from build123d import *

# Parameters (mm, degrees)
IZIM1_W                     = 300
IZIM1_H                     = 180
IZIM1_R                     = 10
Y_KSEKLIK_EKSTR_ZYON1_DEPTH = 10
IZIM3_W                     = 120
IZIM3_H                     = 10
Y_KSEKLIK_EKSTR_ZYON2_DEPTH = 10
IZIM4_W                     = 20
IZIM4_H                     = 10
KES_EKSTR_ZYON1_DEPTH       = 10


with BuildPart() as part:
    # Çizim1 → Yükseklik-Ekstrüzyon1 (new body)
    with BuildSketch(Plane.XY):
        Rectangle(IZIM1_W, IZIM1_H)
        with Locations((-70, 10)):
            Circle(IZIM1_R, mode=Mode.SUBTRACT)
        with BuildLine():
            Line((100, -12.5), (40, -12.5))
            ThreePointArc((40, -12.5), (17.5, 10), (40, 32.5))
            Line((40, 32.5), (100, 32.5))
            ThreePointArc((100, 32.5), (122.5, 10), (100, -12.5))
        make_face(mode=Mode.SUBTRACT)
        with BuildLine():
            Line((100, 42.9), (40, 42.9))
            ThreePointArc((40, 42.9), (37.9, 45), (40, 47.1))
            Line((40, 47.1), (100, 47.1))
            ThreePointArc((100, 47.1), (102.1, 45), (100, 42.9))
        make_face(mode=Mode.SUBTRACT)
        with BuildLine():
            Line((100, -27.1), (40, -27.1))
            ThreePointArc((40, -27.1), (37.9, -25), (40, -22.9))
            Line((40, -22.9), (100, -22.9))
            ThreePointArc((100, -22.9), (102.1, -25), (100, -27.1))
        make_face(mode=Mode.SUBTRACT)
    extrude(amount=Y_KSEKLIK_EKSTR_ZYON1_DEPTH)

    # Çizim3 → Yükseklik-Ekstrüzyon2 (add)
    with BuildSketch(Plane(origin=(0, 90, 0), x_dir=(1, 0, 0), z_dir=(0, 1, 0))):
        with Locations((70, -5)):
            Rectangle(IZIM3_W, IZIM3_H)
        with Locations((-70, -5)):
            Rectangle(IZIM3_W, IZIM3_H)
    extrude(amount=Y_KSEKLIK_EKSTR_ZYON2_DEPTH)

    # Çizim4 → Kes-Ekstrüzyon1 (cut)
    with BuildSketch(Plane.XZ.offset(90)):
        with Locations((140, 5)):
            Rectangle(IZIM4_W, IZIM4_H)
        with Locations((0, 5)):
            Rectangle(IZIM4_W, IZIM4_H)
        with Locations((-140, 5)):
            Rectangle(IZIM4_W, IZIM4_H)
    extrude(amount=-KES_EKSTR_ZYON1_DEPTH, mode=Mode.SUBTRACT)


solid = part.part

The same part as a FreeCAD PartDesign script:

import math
import FreeCAD as App
import Part
import Sketcher
from FreeCAD import Vector

doc = App.newDocument("Part")
body = doc.addObject("PartDesign::Body", "Body")

sketch1 = doc.addObject("Sketcher::SketchObject", "Sketch")
body.addObject(sketch1)
sketch1.AttachmentSupport = (doc.XY_Plane, [""])
sketch1.MapMode = "FlatFace"
sketch1.addGeometry(Part.LineSegment(Vector(-150, 90, 0), Vector(-150, -90, 0)), False)
sketch1.addGeometry(Part.LineSegment(Vector(-150, -90, 0), Vector(150, -90, 0)), False)
sketch1.addGeometry(Part.LineSegment(Vector(150, -90, 0), Vector(150, 90, 0)), False)
sketch1.addGeometry(Part.LineSegment(Vector(150, 90, 0), Vector(-150, 90, 0)), False)
sketch1.addGeometry(Part.ArcOfCircle(Part.Circle(Vector(100, -25, 0), Vector(0, 0, 1), 2.1), math.radians(-90), math.radians(90)), False)
sketch1.addGeometry(Part.LineSegment(Vector(100, -27.1, 0), Vector(40, -27.1, 0)), False)
sketch1.addGeometry(Part.ArcOfCircle(Part.Circle(Vector(40, -25, 0), Vector(0, 0, 1), 2.1), math.radians(90), math.radians(270)), False)
sketch1.addGeometry(Part.LineSegment(Vector(40, -22.9, 0), Vector(100, -22.9, 0)), False)
sketch1.addGeometry(Part.Circle(Vector(-70, 10, 0), Vector(0, 0, 1), 10), False)
sketch1.addGeometry(Part.ArcOfCircle(Part.Circle(Vector(100, 10, 0), Vector(0, 0, 1), 22.5), math.radians(-90), math.radians(90)), False)
sketch1.addGeometry(Part.LineSegment(Vector(100, -12.5, 0), Vector(40, -12.5, 0)), False)
sketch1.addGeometry(Part.ArcOfCircle(Part.Circle(Vector(40, 10, 0), Vector(0, 0, 1), 22.5), math.radians(90), math.radians(270)), False)
sketch1.addGeometry(Part.LineSegment(Vector(40, 32.5, 0), Vector(100, 32.5, 0)), False)
sketch1.addGeometry(Part.ArcOfCircle(Part.Circle(Vector(100, 45, 0), Vector(0, 0, 1), 2.1), math.radians(-90), math.radians(90)), False)
sketch1.addGeometry(Part.LineSegment(Vector(100, 42.9, 0), Vector(40, 42.9, 0)), False)
sketch1.addGeometry(Part.ArcOfCircle(Part.Circle(Vector(40, 45, 0), Vector(0, 0, 1), 2.1), math.radians(90), math.radians(270)), False)
sketch1.addGeometry(Part.LineSegment(Vector(40, 47.1, 0), Vector(100, 47.1, 0)), False)
sketch1.addConstraint(Sketcher.Constraint("Coincident", 0, 2, 1, 1))
sketch1.addConstraint(Sketcher.Constraint("Coincident", 1, 2, 2, 1))
sketch1.addConstraint(Sketcher.Constraint("Coincident", 2, 2, 3, 1))
sketch1.addConstraint(Sketcher.Constraint("Coincident", 3, 2, 0, 1))
sketch1.addConstraint(Sketcher.Constraint("Tangent", 4, 1, 5, 1))
sketch1.addConstraint(Sketcher.Constraint("Tangent", 5, 2, 6, 2))
sketch1.addConstraint(Sketcher.Constraint("Tangent", 6, 1, 7, 1))
sketch1.addConstraint(Sketcher.Constraint("Tangent", 7, 2, 4, 2))
sketch1.addConstraint(Sketcher.Constraint("Tangent", 9, 1, 10, 1))
sketch1.addConstraint(Sketcher.Constraint("Tangent", 10, 2, 11, 2))
sketch1.addConstraint(Sketcher.Constraint("Tangent", 11, 1, 12, 1))
sketch1.addConstraint(Sketcher.Constraint("Tangent", 12, 2, 9, 2))
sketch1.addConstraint(Sketcher.Constraint("Tangent", 13, 1, 14, 1))
sketch1.addConstraint(Sketcher.Constraint("Tangent", 14, 2, 15, 2))
sketch1.addConstraint(Sketcher.Constraint("Tangent", 15, 1, 16, 1))
sketch1.addConstraint(Sketcher.Constraint("Tangent", 16, 2, 13, 2))
sketch1.addConstraint(Sketcher.Constraint("Vertical", 0))
sketch1.addConstraint(Sketcher.Constraint("Horizontal", 1))
sketch1.addConstraint(Sketcher.Constraint("Vertical", 2))
sketch1.addConstraint(Sketcher.Constraint("Horizontal", 3))
sketch1.addConstraint(Sketcher.Constraint("Horizontal", 5))
sketch1.addConstraint(Sketcher.Constraint("Horizontal", 7))
sketch1.addConstraint(Sketcher.Constraint("Horizontal", 10))
sketch1.addConstraint(Sketcher.Constraint("Horizontal", 12))
sketch1.addConstraint(Sketcher.Constraint("Horizontal", 14))
sketch1.addConstraint(Sketcher.Constraint("Horizontal", 16))
sketch1.addConstraint(Sketcher.Constraint("Equal", 6, 13))
sketch1.addConstraint(Sketcher.Constraint("Symmetric", 0, 2, 2, 2, -1, 1))
sketch1.addConstraint(Sketcher.Constraint("Horizontal", 8, 3, 9, 3))
sketch1.addConstraint(Sketcher.Constraint("Vertical", 4, 3, 9, 3))
sketch1.addConstraint(Sketcher.Constraint("Vertical", 6, 3, 11, 3))
sketch1.addConstraint(Sketcher.Constraint("Vertical", 9, 3, 13, 3))
sketch1.addConstraint(Sketcher.Constraint("Vertical", 11, 3, 15, 3))
sketch1.addConstraint(Sketcher.Constraint("Diameter", 8, 20.0))
sketch1.addConstraint(Sketcher.Constraint("Radius", 4, 2.1))
sketch1.addConstraint(Sketcher.Constraint("Radius", 9, 22.5))
sketch1.addConstraint(Sketcher.Constraint("DistanceX", 1, 1, 1, 2, 300.0))
sketch1.addConstraint(Sketcher.Constraint("DistanceX", 5, 2, 5, 1, 60.0))
sketch1.addConstraint(Sketcher.Constraint("DistanceY", 0, 2, 0, 1, 180.0))
sketch1.addConstraint(Sketcher.Constraint("DistanceX", -1, 1, 4, 3, 100.0))
sketch1.addConstraint(Sketcher.Constraint("DistanceY", 4, 3, -1, 1, 25.0))
sketch1.addConstraint(Sketcher.Constraint("DistanceX", 8, 3, -1, 1, 70.0))
sketch1.addConstraint(Sketcher.Constraint("DistanceY", -1, 1, 8, 3, 10.0))
sketch1.addConstraint(Sketcher.Constraint("DistanceY", -1, 1, 13, 3, 45.0))
pad1 = doc.addObject("PartDesign::Pad", "Pad")
body.addObject(pad1)
pad1.Profile = sketch1
pad1.Length = 10

sketch2 = doc.addObject("Sketcher::SketchObject", "Sketch001")
body.addObject(sketch2)
sketch2.AttachmentSupport = (doc.XZ_Plane, [""])
sketch2.MapMode = "FlatFace"
sketch2.AttachmentOffset = App.Placement(Vector(0, 0, -90), App.Rotation())
sketch2.addGeometry(Part.LineSegment(Vector(10, 0, 0), Vector(10, 10, 0)), False)
sketch2.addGeometry(Part.LineSegment(Vector(10, 10, 0), Vector(130, 10, 0)), False)
sketch2.addGeometry(Part.LineSegment(Vector(130, 10, 0), Vector(130, 0, 0)), False)
sketch2.addGeometry(Part.LineSegment(Vector(130, 0, 0), Vector(10, 0, 0)), False)
sketch2.addGeometry(Part.LineSegment(Vector(-130, 0, 0), Vector(-130, 10, 0)), False)
sketch2.addGeometry(Part.LineSegment(Vector(-130, 10, 0), Vector(-10, 10, 0)), False)
sketch2.addGeometry(Part.LineSegment(Vector(-10, 10, 0), Vector(-10, 0, 0)), False)
sketch2.addGeometry(Part.LineSegment(Vector(-10, 0, 0), Vector(-130, 0, 0)), False)
sketch2.addConstraint(Sketcher.Constraint("Coincident", 0, 2, 1, 1))
sketch2.addConstraint(Sketcher.Constraint("Coincident", 1, 2, 2, 1))
sketch2.addConstraint(Sketcher.Constraint("Coincident", 2, 2, 3, 1))
sketch2.addConstraint(Sketcher.Constraint("Coincident", 3, 2, 0, 1))
sketch2.addConstraint(Sketcher.Constraint("Coincident", 4, 2, 5, 1))
sketch2.addConstraint(Sketcher.Constraint("Coincident", 5, 2, 6, 1))
sketch2.addConstraint(Sketcher.Constraint("Coincident", 6, 2, 7, 1))
sketch2.addConstraint(Sketcher.Constraint("Coincident", 7, 2, 4, 1))
sketch2.addConstraint(Sketcher.Constraint("Vertical", 0))
sketch2.addConstraint(Sketcher.Constraint("Horizontal", 1))
sketch2.addConstraint(Sketcher.Constraint("Vertical", 2))
sketch2.addConstraint(Sketcher.Constraint("Horizontal", 3))
sketch2.addConstraint(Sketcher.Constraint("Vertical", 4))
sketch2.addConstraint(Sketcher.Constraint("Horizontal", 5))
sketch2.addConstraint(Sketcher.Constraint("Vertical", 6))
sketch2.addConstraint(Sketcher.Constraint("Horizontal", 7))
sketch2.addConstraint(Sketcher.Constraint("Symmetric", 3, 2, 6, 2, -1, 1))
sketch2.addConstraint(Sketcher.Constraint("Symmetric", 1, 2, 4, 2, -2))
sketch2.addConstraint(Sketcher.Constraint("PointOnObject", 2, 2, -1))
sketch2.addConstraint(Sketcher.Constraint("DistanceX", 1, 1, 1, 2, 120.0))
sketch2.addConstraint(Sketcher.Constraint("DistanceY", 0, 1, 0, 2, 10.0))
sketch2.addConstraint(Sketcher.Constraint("DistanceX", -1, 1, 0, 2, 10.0))
pad2 = doc.addObject("PartDesign::Pad", "Pad001")
body.addObject(pad2)
pad2.Profile = sketch2
pad2.Length = 10
pad2.Reversed = True

sketch3 = doc.addObject("Sketcher::SketchObject", "Sketch002")
body.addObject(sketch3)
sketch3.AttachmentSupport = (doc.XZ_Plane, [""])
sketch3.MapMode = "FlatFace"
sketch3.AttachmentOffset = App.Placement(Vector(0, 0, 90), App.Rotation())
sketch3.addGeometry(Part.LineSegment(Vector(130, 10, 0), Vector(130, 0, 0)), False)
sketch3.addGeometry(Part.LineSegment(Vector(130, 0, 0), Vector(150, 0, 0)), False)
sketch3.addGeometry(Part.LineSegment(Vector(150, 0, 0), Vector(150, 10, 0)), False)
sketch3.addGeometry(Part.LineSegment(Vector(150, 10, 0), Vector(130, 10, 0)), False)
sketch3.addGeometry(Part.LineSegment(Vector(-10, 10, 0), Vector(-10, 0, 0)), False)
sketch3.addGeometry(Part.LineSegment(Vector(-10, 0, 0), Vector(10, 0, 0)), False)
sketch3.addGeometry(Part.LineSegment(Vector(10, 0, 0), Vector(10, 10, 0)), False)
sketch3.addGeometry(Part.LineSegment(Vector(10, 10, 0), Vector(-10, 10, 0)), False)
sketch3.addGeometry(Part.LineSegment(Vector(-150, 10, 0), Vector(-150, 0, 0)), False)
sketch3.addGeometry(Part.LineSegment(Vector(-150, 0, 0), Vector(-130, 0, 0)), False)
sketch3.addGeometry(Part.LineSegment(Vector(-130, 0, 0), Vector(-130, 10, 0)), False)
sketch3.addGeometry(Part.LineSegment(Vector(-130, 10, 0), Vector(-150, 10, 0)), False)
sketch3.addConstraint(Sketcher.Constraint("Coincident", 0, 2, 1, 1))
sketch3.addConstraint(Sketcher.Constraint("Coincident", 1, 2, 2, 1))
sketch3.addConstraint(Sketcher.Constraint("Coincident", 2, 2, 3, 1))
sketch3.addConstraint(Sketcher.Constraint("Coincident", 3, 2, 0, 1))
sketch3.addConstraint(Sketcher.Constraint("Coincident", 4, 2, 5, 1))
sketch3.addConstraint(Sketcher.Constraint("Coincident", 5, 2, 6, 1))
sketch3.addConstraint(Sketcher.Constraint("Coincident", 6, 2, 7, 1))
sketch3.addConstraint(Sketcher.Constraint("Coincident", 7, 2, 4, 1))
sketch3.addConstraint(Sketcher.Constraint("Coincident", 8, 2, 9, 1))
sketch3.addConstraint(Sketcher.Constraint("Coincident", 9, 2, 10, 1))
sketch3.addConstraint(Sketcher.Constraint("Coincident", 10, 2, 11, 1))
sketch3.addConstraint(Sketcher.Constraint("Coincident", 11, 2, 8, 1))
sketch3.addConstraint(Sketcher.Constraint("Vertical", 0))
sketch3.addConstraint(Sketcher.Constraint("Horizontal", 1))
sketch3.addConstraint(Sketcher.Constraint("Vertical", 2))
sketch3.addConstraint(Sketcher.Constraint("Horizontal", 3))
sketch3.addConstraint(Sketcher.Constraint("Vertical", 4))
sketch3.addConstraint(Sketcher.Constraint("Horizontal", 5))
sketch3.addConstraint(Sketcher.Constraint("Vertical", 6))
sketch3.addConstraint(Sketcher.Constraint("Horizontal", 7))
sketch3.addConstraint(Sketcher.Constraint("Vertical", 8))
sketch3.addConstraint(Sketcher.Constraint("Horizontal", 9))
sketch3.addConstraint(Sketcher.Constraint("Vertical", 10))
sketch3.addConstraint(Sketcher.Constraint("Horizontal", 11))
sketch3.addConstraint(Sketcher.Constraint("Symmetric", 4, 2, 5, 2, -1, 1))
sketch3.addConstraint(Sketcher.Constraint("Symmetric", 1, 2, 8, 2, -1, 1))
sketch3.addConstraint(Sketcher.Constraint("Symmetric", 0, 2, 9, 2, -2))
sketch3.addConstraint(Sketcher.Constraint("Horizontal", 3, 2, 6, 2))
sketch3.addConstraint(Sketcher.Constraint("Horizontal", 7, 2, 10, 2))
sketch3.addConstraint(Sketcher.Constraint("Equal", 3, 5))
sketch3.addConstraint(Sketcher.Constraint("DistanceX", 1, 1, 1, 2, 20.0))
sketch3.addConstraint(Sketcher.Constraint("DistanceY", 0, 2, 0, 1, 10.0))
sketch3.addConstraint(Sketcher.Constraint("DistanceX", -1, 1, 0, 2, 130.0))
pocket1 = doc.addObject("PartDesign::Pocket", "Pocket")
body.addObject(pocket1)
pocket1.Profile = sketch3
pocket1.Length = 10

doc.recompute()
